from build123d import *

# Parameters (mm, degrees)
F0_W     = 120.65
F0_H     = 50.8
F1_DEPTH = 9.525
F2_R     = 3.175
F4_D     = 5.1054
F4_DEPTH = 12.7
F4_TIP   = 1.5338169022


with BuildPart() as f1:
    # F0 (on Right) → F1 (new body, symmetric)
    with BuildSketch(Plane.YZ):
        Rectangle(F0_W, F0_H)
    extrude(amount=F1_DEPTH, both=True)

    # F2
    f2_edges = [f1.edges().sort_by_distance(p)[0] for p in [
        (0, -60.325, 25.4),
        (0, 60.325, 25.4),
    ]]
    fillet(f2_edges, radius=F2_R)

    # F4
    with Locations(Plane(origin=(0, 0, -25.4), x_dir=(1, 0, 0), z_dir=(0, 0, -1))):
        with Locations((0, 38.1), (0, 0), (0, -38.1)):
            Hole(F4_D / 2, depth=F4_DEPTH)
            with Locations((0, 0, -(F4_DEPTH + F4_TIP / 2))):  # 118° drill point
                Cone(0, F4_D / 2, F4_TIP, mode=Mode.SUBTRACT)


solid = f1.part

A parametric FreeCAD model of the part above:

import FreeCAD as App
import Part
import Sketcher
Q = App.Units.Quantity


def edges_at(feature, points):
    """Names of the edges that pass closest to the given points."""
    edges = feature.Shape.Edges
    near = lambda p: min(range(len(edges)), key=lambda i: edges[i].distToShape(Part.Vertex(*p))[0])
    return sorted({f"Edge{near(p) + 1}" for p in points})


def add_polygon(sketch, points):
    """Adds a closed chain of lines whose ends are joined by coincident constraints."""
    first, n = sketch.GeometryCount, len(points)
    for a, b in zip(points, points[1:] + points[:1]):
        sketch.addGeometry(Part.LineSegment(App.Vector(*a, 0), App.Vector(*b, 0)), False)
    for i in range(n):
        sketch.addConstraint(Sketcher.Constraint("Coincident", first + i, 2, first + (i + 1) % n, 1))

doc = App.newDocument("Part")
body = doc.addObject("PartDesign::Body", "Body")

# Sketch on YZ plane
sketch1 = body.newObject("Sketcher::SketchObject", "Sketch")
sketch1.AttachmentSupport = (doc.getObject("YZ_Plane"), [""])
sketch1.MapMode = "FlatFace"
add_polygon(sketch1, [(-60, 25), (-60, -25), (60, -25), (60, 25)])  # lines 0-3
sketch1.addConstraint([
    Sketcher.Constraint("Vertical", 0),
    Sketcher.Constraint("Horizontal", 1),
    Sketcher.Constraint("Vertical", 2),
    Sketcher.Constraint("Horizontal", 3),
    Sketcher.Constraint("Symmetric", 0, 2, 2, 2, -1, 1),
    Sketcher.Constraint("DistanceY", 0, 2, 0, 1, Q("2 in")),
    Sketcher.Constraint("DistanceX", 1, 1, 1, 2, Q("4.75 in")),
])
pad1 = body.newObject("PartDesign::Pad", "Pad")
pad1.Profile = sketch1
pad1.Length = Q("0.75 in")
pad1.Midplane = True
doc.recompute()

fillet = body.newObject("PartDesign::Fillet", "Fillet")
fillet.Base = (pad1, edges_at(pad1, [(0, -60.325, 25.4), (0, 60.325, 25.4)]))
fillet.Radius = Q("0.125 in")

# Sketch on XY plane
sketch2 = body.newObject("Sketcher::SketchObject", "Sketch001")
sketch2.AttachmentSupport = (doc.getObject("XY_Plane"), [""])
sketch2.MapMode = "FlatFace"
sketch2.AttachmentOffset = App.Placement(App.Vector(0, 0, -1 * 25.4), App.Rotation())
sketch2.addGeometry([
    Part.Circle(App.Vector(0, -38.1, 0), App.Vector(0, 0, 1), 2.6),
    Part.Circle(App.Vector(0, 0, 0), App.Vector(0, 0, 1), 2.6),
    Part.Circle(App.Vector(0, 38.1, 0), App.Vector(0, 0, 1), 2.6),
], False)
sketch2.addConstraint([
    Sketcher.Constraint("Coincident", 1, 3, -1, 1),
    Sketcher.Constraint("Equal", 0, 1),
    Sketcher.Constraint("Equal", 1, 2),
    Sketcher.Constraint("Symmetric", 0, 3, 2, 3, -1, 1),
    Sketcher.Constraint("PointOnObject", 0, 3, -2),
    Sketcher.Constraint("Diameter", 0, Q("0.201 in")),
    Sketcher.Constraint("DistanceY", 0, 3, 2, 3, Q("3 in")),
])
doc.recompute()
hole = body.newObject("PartDesign::Hole", "Hole")
hole.Profile = sketch2
hole.ThreadType = "None"
hole.Diameter = Q("0.201 in")
hole.DepthType = "Dimension"
hole.Depth = Q("0.5 in")
hole.DrillPoint = "Angled"
hole.DrillPointAngle = 118
hole.Reversed = True

doc.recompute()
